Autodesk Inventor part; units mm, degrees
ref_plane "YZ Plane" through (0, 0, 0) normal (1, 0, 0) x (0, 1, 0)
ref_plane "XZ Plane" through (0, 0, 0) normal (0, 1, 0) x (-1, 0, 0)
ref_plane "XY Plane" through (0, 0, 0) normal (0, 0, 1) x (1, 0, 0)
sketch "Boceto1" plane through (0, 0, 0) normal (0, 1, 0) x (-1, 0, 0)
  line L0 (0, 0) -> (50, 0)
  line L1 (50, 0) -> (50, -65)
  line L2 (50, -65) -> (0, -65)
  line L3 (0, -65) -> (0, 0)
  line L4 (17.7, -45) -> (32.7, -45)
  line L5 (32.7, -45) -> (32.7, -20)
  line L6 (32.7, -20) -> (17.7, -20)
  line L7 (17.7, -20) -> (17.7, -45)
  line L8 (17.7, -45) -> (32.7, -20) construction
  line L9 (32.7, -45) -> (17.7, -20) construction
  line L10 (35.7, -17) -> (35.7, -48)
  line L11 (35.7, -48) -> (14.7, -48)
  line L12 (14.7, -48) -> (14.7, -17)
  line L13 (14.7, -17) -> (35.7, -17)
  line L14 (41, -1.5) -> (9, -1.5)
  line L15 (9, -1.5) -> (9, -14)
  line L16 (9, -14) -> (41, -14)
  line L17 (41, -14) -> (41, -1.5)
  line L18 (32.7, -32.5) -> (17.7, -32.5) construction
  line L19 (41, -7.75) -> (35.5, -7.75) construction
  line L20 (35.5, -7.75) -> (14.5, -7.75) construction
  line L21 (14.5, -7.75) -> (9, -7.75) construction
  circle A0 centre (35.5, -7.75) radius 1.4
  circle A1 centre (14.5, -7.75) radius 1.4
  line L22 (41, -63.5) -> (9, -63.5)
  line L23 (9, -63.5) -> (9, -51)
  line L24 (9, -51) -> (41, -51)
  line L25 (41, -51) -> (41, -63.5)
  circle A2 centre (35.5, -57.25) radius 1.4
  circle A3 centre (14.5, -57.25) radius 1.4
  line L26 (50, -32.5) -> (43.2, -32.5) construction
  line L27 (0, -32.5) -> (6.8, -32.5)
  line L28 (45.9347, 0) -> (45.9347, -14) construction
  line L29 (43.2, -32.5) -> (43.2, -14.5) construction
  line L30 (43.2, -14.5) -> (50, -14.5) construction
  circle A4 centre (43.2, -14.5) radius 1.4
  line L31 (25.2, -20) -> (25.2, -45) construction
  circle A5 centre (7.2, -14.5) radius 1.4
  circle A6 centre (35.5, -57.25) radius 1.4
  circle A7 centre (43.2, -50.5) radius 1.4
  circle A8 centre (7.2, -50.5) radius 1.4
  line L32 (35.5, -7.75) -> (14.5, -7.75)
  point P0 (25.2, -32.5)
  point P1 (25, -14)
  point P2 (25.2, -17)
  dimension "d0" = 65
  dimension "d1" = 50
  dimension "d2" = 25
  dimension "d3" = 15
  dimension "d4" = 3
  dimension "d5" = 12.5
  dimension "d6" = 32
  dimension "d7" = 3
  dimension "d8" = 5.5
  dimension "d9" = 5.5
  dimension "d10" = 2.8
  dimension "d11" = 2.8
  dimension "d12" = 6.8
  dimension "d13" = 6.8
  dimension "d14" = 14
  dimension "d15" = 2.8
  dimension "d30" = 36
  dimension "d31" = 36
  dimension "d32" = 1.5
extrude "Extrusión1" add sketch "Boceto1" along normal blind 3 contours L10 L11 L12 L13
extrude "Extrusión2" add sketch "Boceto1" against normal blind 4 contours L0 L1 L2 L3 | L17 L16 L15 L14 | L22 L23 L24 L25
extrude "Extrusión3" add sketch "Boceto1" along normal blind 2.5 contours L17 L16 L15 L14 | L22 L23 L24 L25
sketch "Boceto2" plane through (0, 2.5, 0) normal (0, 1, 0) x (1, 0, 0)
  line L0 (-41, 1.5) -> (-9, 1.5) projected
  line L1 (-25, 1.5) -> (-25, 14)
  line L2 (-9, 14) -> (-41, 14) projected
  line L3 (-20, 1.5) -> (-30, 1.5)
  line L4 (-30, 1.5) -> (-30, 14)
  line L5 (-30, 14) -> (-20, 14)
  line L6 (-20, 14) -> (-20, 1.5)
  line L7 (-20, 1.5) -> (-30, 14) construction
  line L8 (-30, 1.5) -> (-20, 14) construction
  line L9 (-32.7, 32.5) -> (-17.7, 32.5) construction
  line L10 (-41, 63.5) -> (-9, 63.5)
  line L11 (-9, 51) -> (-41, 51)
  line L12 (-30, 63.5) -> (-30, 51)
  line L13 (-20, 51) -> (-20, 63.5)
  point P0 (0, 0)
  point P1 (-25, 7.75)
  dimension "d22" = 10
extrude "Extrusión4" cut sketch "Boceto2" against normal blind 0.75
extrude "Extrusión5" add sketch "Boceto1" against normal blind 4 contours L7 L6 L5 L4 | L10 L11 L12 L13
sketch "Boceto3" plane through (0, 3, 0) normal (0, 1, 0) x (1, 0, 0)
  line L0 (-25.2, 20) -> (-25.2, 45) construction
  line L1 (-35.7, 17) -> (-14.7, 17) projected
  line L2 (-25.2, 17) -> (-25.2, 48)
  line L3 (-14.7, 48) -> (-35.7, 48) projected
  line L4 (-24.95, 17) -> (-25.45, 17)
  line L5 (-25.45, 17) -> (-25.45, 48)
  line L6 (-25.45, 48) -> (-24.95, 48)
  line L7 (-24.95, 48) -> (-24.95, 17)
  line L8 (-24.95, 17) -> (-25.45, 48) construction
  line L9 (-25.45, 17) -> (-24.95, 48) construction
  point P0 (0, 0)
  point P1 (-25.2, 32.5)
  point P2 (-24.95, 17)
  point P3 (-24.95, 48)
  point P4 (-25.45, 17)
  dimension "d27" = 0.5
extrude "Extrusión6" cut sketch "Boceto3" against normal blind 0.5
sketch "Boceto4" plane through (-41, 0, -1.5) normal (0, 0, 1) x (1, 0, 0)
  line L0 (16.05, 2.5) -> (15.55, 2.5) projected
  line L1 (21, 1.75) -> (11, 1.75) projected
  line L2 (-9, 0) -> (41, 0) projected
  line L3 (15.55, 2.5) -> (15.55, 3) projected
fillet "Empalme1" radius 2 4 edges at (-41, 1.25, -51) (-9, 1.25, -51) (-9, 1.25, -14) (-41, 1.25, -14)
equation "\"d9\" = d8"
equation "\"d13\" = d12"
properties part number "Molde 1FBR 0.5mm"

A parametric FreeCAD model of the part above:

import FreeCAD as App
import Part
import Sketcher

V = App.Vector


def edges_at(feature, points):
    """Names of the edges that pass closest to the given points."""
    edges = feature.Shape.Edges
    near = lambda p: min(range(len(edges)), key=lambda i: edges[i].distToShape(Part.Vertex(*p))[0])
    return sorted({f"Edge{near(p) + 1}" for p in points})

doc = App.newDocument("Part")
body = doc.addObject("PartDesign::Body", "Body")
body.AllowCompound = True

# Sketch on XZ plane
sketch1 = doc.addObject("Sketcher::SketchObject", "Sketch")
body.addObject(sketch1)
sketch1.AttachmentSupport = (doc.XZ_Plane, [""])
sketch1.MapMode = "FlatFace"
sketch1.addGeometry(Part.LineSegment(V(-36, -48, 0), V(-36, -17, 0)), False)
sketch1.addGeometry(Part.LineSegment(V(-36, -17, 0), V(-15, -17, 0)), False)
sketch1.addGeometry(Part.LineSegment(V(-15, -17, 0), V(-15, -48, 0)), False)
sketch1.addGeometry(Part.LineSegment(V(-15, -48, 0), V(-36, -48, 0)), False)
sketch1.addGeometry(Part.LineSegment(V(-33, -45, 0), V(-18, -45, 0)), False)
sketch1.addGeometry(Part.LineSegment(V(-18, -45, 0), V(-18, -20, 0)), False)
sketch1.addGeometry(Part.LineSegment(V(-18, -20, 0), V(-33, -20, 0)), False)
sketch1.addGeometry(Part.LineSegment(V(-33, -20, 0), V(-33, -45, 0)), False)
sketch1.addConstraint(Sketcher.Constraint("Coincident", 0, 2, 1, 1))
sketch1.addConstraint(Sketcher.Constraint("Coincident", 1, 2, 2, 1))
sketch1.addConstraint(Sketcher.Constraint("Coincident", 2, 2, 3, 1))
sketch1.addConstraint(Sketcher.Constraint("Coincident", 3, 2, 0, 1))
sketch1.addConstraint(Sketcher.Constraint("Coincident", 4, 2, 5, 1))
sketch1.addConstraint(Sketcher.Constraint("Coincident", 5, 2, 6, 1))
sketch1.addConstraint(Sketcher.Constraint("Coincident", 6, 2, 7, 1))
sketch1.addConstraint(Sketcher.Constraint("Coincident", 7, 2, 4, 1))
sketch1.addConstraint(Sketcher.Constraint("Vertical", 0))
sketch1.addConstraint(Sketcher.Constraint("Horizontal", 1))
sketch1.addConstraint(Sketcher.Constraint("Vertical", 2))
sketch1.addConstraint(Sketcher.Constraint("Horizontal", 3))
sketch1.addConstraint(Sketcher.Constraint("Horizontal", 4))
sketch1.addConstraint(Sketcher.Constraint("Vertical", 5))
sketch1.addConstraint(Sketcher.Constraint("Horizontal", 6))
sketch1.addConstraint(Sketcher.Constraint("Vertical", 7))
sketch1.addConstraint(Sketcher.Constraint("DistanceX", 4, 1, 4, 2, 15.0))
sketch1.addConstraint(Sketcher.Constraint("DistanceY", 5, 1, 5, 2, 25.0))
sketch1.addConstraint(Sketcher.Constraint("DistanceX", 4, 2, 2, 2, 3.0))
sketch1.addConstraint(Sketcher.Constraint("DistanceY", 2, 2, 4, 2, 3.0))
sketch1.addConstraint(Sketcher.Constraint("DistanceY", 5, 2, 1, 2, 3.0))
sketch1.addConstraint(Sketcher.Constraint("DistanceX", 0, 2, 6, 2, 3.0))
sketch1.addConstraint(Sketcher.Constraint("DistanceY", 0, 2, -1, 1, 17.0))
sketch1.addConstraint(Sketcher.Constraint("DistanceX", 0, 2, -1, 1, 35.7))
pad1 = doc.addObject("PartDesign::Pad", "Pad")
body.addObject(pad1)
pad1.Profile = sketch1
pad1.Length = 3
pad1.Reversed = True

# Sketch on XZ plane
sketch2 = doc.addObject("Sketcher::SketchObject", "Sketch001")
body.addObject(sketch2)
sketch2.AttachmentSupport = (doc.XZ_Plane, [""])
sketch2.MapMode = "FlatFace"
sketch2.addGeometry(Part.LineSegment(V(-50, 0, 0), V(0, 0, 0)), False)
sketch2.addGeometry(Part.LineSegment(V(0, 0, 0), V(0, -65, 0)), False)
sketch2.addGeometry(Part.LineSegment(V(0, -65, 0), V(-50, -65, 0)), False)
sketch2.addGeometry(Part.LineSegment(V(-50, -65, 0), V(-50, 0, 0)), False)
sketch2.addGeometry(Part.Circle(V(-7.2, -50.5, 0), V(0, 0, 1), 1.4), False)
sketch2.addGeometry(Part.Circle(V(-43.2, -50.5, 0), V(0, 0, 1), 1.4), False)
sketch2.addGeometry(Part.Circle(V(-7.2, -14.5, 0), V(0, 0, 1), 1.4), False)
sketch2.addGeometry(Part.LineSegment(V(-14.7, -17, 0), V(-35.7, -17, 0)), False)
sketch2.addGeometry(Part.LineSegment(V(-35.7, -17, 0), V(-35.7, -48, 0)), False)
sketch2.addGeometry(Part.LineSegment(V(-35.7, -48, 0), V(-14.7, -48, 0)), False)
sketch2.addGeometry(Part.LineSegment(V(-14.7, -48, 0), V(-14.7, -17, 0)), False)
sketch2.addGeometry(Part.Circle(V(-43.2, -14.5, 0), V(0, 0, 1), 1.4), False)
sketch2.addGeometry(Part.Circle(V(-14.5, -57.2, 0), V(0, 0, 1), 1.4), False)
sketch2.addGeometry(Part.Circle(V(-35.5, -57.2, 0), V(0, 0, 1), 1.4), False)
sketch2.addGeometry(Part.Circle(V(-14.5, -7.8, 0), V(0, 0, 1), 1.4), False)
sketch2.addGeometry(Part.Circle(V(-35.5, -7.8, 0), V(0, 0, 1), 1.4), False)
sketch2.addConstraint(Sketcher.Constraint("Coincident", 0, 2, 1, 1))
sketch2.addConstraint(Sketcher.Constraint("Coincident", 1, 2, 2, 1))
sketch2.addConstraint(Sketcher.Constraint("Coincident", 2, 2, 3, 1))
sketch2.addConstraint(Sketcher.Constraint("Coincident", 3, 2, 0, 1))
sketch2.addConstraint(Sketcher.Constraint("Coincident", 7, 2, 8, 1))
sketch2.addConstraint(Sketcher.Constraint("Coincident", 8, 2, 9, 1))
sketch2.addConstraint(Sketcher.Constraint("Coincident", 9, 2, 10, 1))
sketch2.addConstraint(Sketcher.Constraint("Coincident", 10, 2, 7, 1))
sketch2.addConstraint(Sketcher.Constraint("Horizontal", 0))
sketch2.addConstraint(Sketcher.Constraint("Vertical", 1))
sketch2.addConstraint(Sketcher.Constraint("Horizontal", 2))
sketch2.addConstraint(Sketcher.Constraint("Vertical", 3))
sketch2.addConstraint(Sketcher.Constraint("Horizontal", 7))
sketch2.addConstraint(Sketcher.Constraint("Vertical", 8))
sketch2.addConstraint(Sketcher.Constraint("Horizontal", 9))
sketch2.addConstraint(Sketcher.Constraint("Vertical", 10))
sketch2.addConstraint(Sketcher.Constraint("Coincident", 0, 2, -1, 1))
sketch2.addConstraint(Sketcher.Constraint("Equal", 4, 5))
sketch2.addConstraint(Sketcher.Constraint("Equal", 5, 6))
sketch2.addConstraint(Sketcher.Constraint("Equal", 6, 11))
sketch2.addConstraint(Sketcher.Constraint("Equal", 11, 12))
sketch2.addConstraint(Sketcher.Constraint("Equal", 12, 13))
sketch2.addConstraint(Sketcher.Constraint("Equal", 13, 14))
sketch2.addConstraint(Sketcher.Constraint("Equal", 14, 15))
sketch2.addConstraint(Sketcher.Constraint("Horizontal", 4, 3, 5, 3))
sketch2.addConstraint(Sketcher.Constraint("Horizontal", 6, 3, 11, 3))
sketch2.addConstraint(Sketcher.Constraint("Horizontal", 12, 3, 13, 3))
sketch2.addConstraint(Sketcher.Constraint("Horizontal", 14, 3, 15, 3))
sketch2.addConstraint(Sketcher.Constraint("Vertical", 4, 3, 6, 3))
sketch2.addConstraint(Sketcher.Constraint("Vertical", 5, 3, 11, 3))
sketch2.addConstraint(Sketcher.Constraint("Vertical", 12, 3, 14, 3))
sketch2.addConstraint(Sketcher.Constraint("Vertical", 13, 3, 15, 3))
sketch2.addConstraint(Sketcher.Constraint("Diameter", 4, 2.8))
sketch2.addConstraint(Sketcher.Constraint("DistanceX", 0, 1, 0, 2, 50.0))
sketch2.addConstraint(Sketcher.Constraint("DistanceY", 1, 2, 1, 1, 65.0))
sketch2.addConstraint(Sketcher.Constraint("DistanceX", 5, 3, 4, 3, 36.0))
sketch2.addConstraint(Sketcher.Constraint("DistanceY", 4, 3, 6, 3, 36.0))
sketch2.addConstraint(Sketcher.Constraint("DistanceX", 2, 2, 5, 3, 6.8))
sketch2.addConstraint(Sketcher.Constraint("DistanceX", 7, 2, 7, 1, 21.0))
sketch2.addConstraint(Sketcher.Constraint("DistanceY", 8, 2, 8, 1, 31.0))
sketch2.addConstraint(Sketcher.Constraint("DistanceY", 7, 2, -1, 1, 17.0))
sketch2.addConstraint(Sketcher.Constraint("DistanceX", 13, 3, 12, 3, 21.0))
sketch2.addConstraint(Sketcher.Constraint("DistanceY", 4, 3, -1, 1, 50.5))
sketch2.addConstraint(Sketcher.Constraint("DistanceX", 12, 3, -1, 1, 14.5))
sketch2.addConstraint(Sketcher.Constraint("DistanceX", 7, 2, -1, 1, 35.7))
sketch2.addConstraint(Sketcher.Constraint("DistanceY", 12, 3, 14, 3, 49.5))
sketch2.addConstraint(Sketcher.Constraint("DistanceY", 12, 3, -1, 1, 57.25))
pad2 = doc.addObject("PartDesign::Pad", "Pad001")
body.addObject(pad2)
pad2.Profile = sketch2
pad2.Length = 4

# Sketch on XZ plane
sketch3 = doc.addObject("Sketcher::SketchObject", "Sketch002")
body.addObject(sketch3)
sketch3.AttachmentSupport = (doc.XZ_Plane, [""])
sketch3.MapMode = "FlatFace"
sketch3.addGeometry(Part.LineSegment(V(-41, -14, 0), V(-41, -1.5, 0)), False)
sketch3.addGeometry(Part.LineSegment(V(-41, -1.5, 0), V(-9, -1.5, 0)), False)
sketch3.addGeometry(Part.LineSegment(V(-9, -1.5, 0), V(-9, -14, 0)), False)
sketch3.addGeometry(Part.LineSegment(V(-9, -14, 0), V(-41, -14, 0)), False)
sketch3.addGeometry(Part.Circle(V(-14.5, -7.8, 0), V(0, 0, 1), 1.4), False)
sketch3.addGeometry(Part.Circle(V(-35.5, -7.8, 0), V(0, 0, 1), 1.4), False)
sketch3.addGeometry(Part.LineSegment(V(-9, -63.5, 0), V(-41, -63.5, 0)), False)
sketch3.addGeometry(Part.LineSegment(V(-41, -63.5, 0), V(-41, -51, 0)), False)
sketch3.addGeometry(Part.LineSegment(V(-41, -51, 0), V(-9, -51, 0)), False)
sketch3.addGeometry(Part.LineSegment(V(-9, -51, 0), V(-9, -63.5, 0)), False)
sketch3.addGeometry(Part.Circle(V(-14.5, -57.2, 0), V(0, 0, 1), 1.4), False)
sketch3.addGeometry(Part.Circle(V(-35.5, -57.2, 0), V(0, 0, 1), 1.4), False)
sketch3.addConstraint(Sketcher.Constraint("Coincident", 0, 2, 1, 1))
sketch3.addConstraint(Sketcher.Constraint("Coincident", 1, 2, 2, 1))
sketch3.addConstraint(Sketcher.Constraint("Coincident", 2, 2, 3, 1))
sketch3.addConstraint(Sketcher.Constraint("Coincident", 3, 2, 0, 1))
sketch3.addConstraint(Sketcher.Constraint("Coincident", 6, 2, 7, 1))
sketch3.addConstraint(Sketcher.Constraint("Coincident", 7, 2, 8, 1))
sketch3.addConstraint(Sketcher.Constraint("Coincident", 8, 2, 9, 1))
sketch3.addConstraint(Sketcher.Constraint("Coincident", 9, 2, 6, 1))
sketch3.addConstraint(Sketcher.Constraint("Vertical", 0))
sketch3.addConstraint(Sketcher.Constraint("Horizontal", 1))
sketch3.addConstraint(Sketcher.Constraint("Vertical", 2))
sketch3.addConstraint(Sketcher.Constraint("Horizontal", 3))
sketch3.addConstraint(Sketcher.Constraint("Horizontal", 6))
sketch3.addConstraint(Sketcher.Constraint("Vertical", 7))
sketch3.addConstraint(Sketcher.Constraint("Horizontal", 8))
sketch3.addConstraint(Sketcher.Constraint("Vertical", 9))
sketch3.addConstraint(Sketcher.Constraint("Equal", 4, 5))
sketch3.addConstraint(Sketcher.Constraint("Equal", 5, 10))
sketch3.addConstraint(Sketcher.Constraint("Equal", 10, 11))
sketch3.addConstraint(Sketcher.Constraint("Horizontal", 4, 3, 5, 3))
sketch3.addConstraint(Sketcher.Constraint("Horizontal", 10, 3, 11, 3))
sketch3.addConstraint(Sketcher.Constraint("Vertical", 4, 3, 10, 3))
sketch3.addConstraint(Sketcher.Constraint("Vertical", 5, 3, 11, 3))
sketch3.addConstraint(Sketcher.Constraint("Vertical", 3, 2, 6, 2))
sketch3.addConstraint(Sketcher.Constraint("Vertical", 2, 2, 8, 2))
sketch3.addConstraint(Sketcher.Constraint("Equal", 2, 7))
sketch3.addConstraint(Sketcher.Constraint("Diameter", 4, 2.8))
sketch3.addConstraint(Sketcher.Constraint("DistanceX", 1, 1, 1, 2, 32.0))
sketch3.addConstraint(Sketcher.Constraint("DistanceY", 0, 1, 0, 2, 12.5))
sketch3.addConstraint(Sketcher.Constraint("DistanceY", 2, 2, -1, 1, 14.0))
sketch3.addConstraint(Sketcher.Constraint("DistanceX", 0, 2, 5, 3, 5.5))
sketch3.addConstraint(Sketcher.Constraint("DistanceX", 4, 3, 1, 2, 5.5))
sketch3.addConstraint(Sketcher.Constraint("DistanceX", 0, 2, -1, 1, 41.0))
sketch3.addConstraint(Sketcher.Constraint("DistanceY", 7, 2, -1, 1, 51.0))
sketch3.addConstraint(Sketcher.Constraint("DistanceY", 10, 3, 4, 3, 49.5))
sketch3.addConstraint(Sketcher.Constraint("DistanceY", 4, 3, -1, 1, 7.75))
pad3 = doc.addObject("PartDesign::Pad", "Pad002")
body.addObject(pad3)
pad3.Profile = sketch3
pad3.Length = 2.5
pad3.Reversed = True

# Sketch on XZ plane
sketch4 = doc.addObject("Sketcher::SketchObject", "Sketch003")
body.addObject(sketch4)
sketch4.AttachmentSupport = (doc.XZ_Plane, [""])
sketch4.MapMode = "FlatFace"
sketch4.AttachmentOffset = App.Placement(V(0, 0, -2.5), App.Rotation())
sketch4.addGeometry(Part.LineSegment(V(-30, -14, 0), V(-30, -2, 0)), False)
sketch4.addGeometry(Part.LineSegment(V(-30, -2, 0), V(-20, -2, 0)), False)
sketch4.addGeometry(Part.LineSegment(V(-20, -2, 0), V(-20, -14, 0)), False)
sketch4.addGeometry(Part.LineSegment(V(-20, -14, 0), V(-30, -14, 0)), False)
sketch4.addGeometry(Part.LineSegment(V(-20, -64, 0), V(-30, -64, 0)), False)
sketch4.addGeometry(Part.LineSegment(V(-30, -64, 0), V(-30, -51, 0)), False)
sketch4.addGeometry(Part.LineSegment(V(-30, -51, 0), V(-20, -51, 0)), False)
sketch4.addGeometry(Part.LineSegment(V(-20, -51, 0), V(-20, -64, 0)), False)
sketch4.addConstraint(Sketcher.Constraint("Coincident", 0, 2, 1, 1))
sketch4.addConstraint(Sketcher.Constraint("Coincident", 1, 2, 2, 1))
sketch4.addConstraint(Sketcher.Constraint("Coincident", 2, 2, 3, 1))
sketch4.addConstraint(Sketcher.Constraint("Coincident", 3, 2, 0, 1))
sketch4.addConstraint(Sketcher.Constraint("Coincident", 4, 2, 5, 1))
sketch4.addConstraint(Sketcher.Constraint("Coincident", 5, 2, 6, 1))
sketch4.addConstraint(Sketcher.Constraint("Coincident", 6, 2, 7, 1))
sketch4.addConstraint(Sketcher.Constraint("Coincident", 7, 2, 4, 1))
sketch4.addConstraint(Sketcher.Constraint("Vertical", 0))
sketch4.addConstraint(Sketcher.Constraint("Horizontal", 1))
sketch4.addConstraint(Sketcher.Constraint("Vertical", 2))
sketch4.addConstraint(Sketcher.Constraint("Horizontal", 3))
sketch4.addConstraint(Sketcher.Constraint("Horizontal", 4))
sketch4.addConstraint(Sketcher.Constraint("Vertical", 5))
sketch4.addConstraint(Sketcher.Constraint("Horizontal", 6))
sketch4.addConstraint(Sketcher.Constraint("Vertical", 7))
sketch4.addConstraint(Sketcher.Constraint("Vertical", 3, 2, 4, 2))
sketch4.addConstraint(Sketcher.Constraint("Vertical", 2, 2, 6, 2))
sketch4.addConstraint(Sketcher.Constraint("Equal", 2, 5))
sketch4.addConstraint(Sketcher.Constraint("DistanceX", 1, 1, 1, 2, 10.0))
sketch4.addConstraint(Sketcher.Constraint("DistanceY", 0, 1, 0, 2, 12.5))
sketch4.addConstraint(Sketcher.Constraint("DistanceX", 0, 2, -1, 1, 30.0))
sketch4.addConstraint(Sketcher.Constraint("DistanceY", 2, 2, -1, 1, 14.0))
sketch4.addConstraint(Sketcher.Constraint("DistanceY", 5, 2, -1, 1, 51.0))
pocket1 = doc.addObject("PartDesign::Pocket", "Pocket")
body.addObject(pocket1)
pocket1.Profile = sketch4
pocket1.Length = 0.75
pocket1.Reversed = True

# Sketch on XZ plane
sketch5 = doc.addObject("Sketcher::SketchObject", "Sketch004")
body.addObject(sketch5)
sketch5.AttachmentSupport = (doc.XZ_Plane, [""])
sketch5.MapMode = "FlatFace"
sketch5.addGeometry(Part.LineSegment(V(-36, -48, 0), V(-36, -17, 0)), False)
sketch5.addGeometry(Part.LineSegment(V(-36, -17, 0), V(-15, -17, 0)), False)
sketch5.addGeometry(Part.LineSegment(V(-15, -17, 0), V(-15, -48, 0)), False)
sketch5.addGeometry(Part.LineSegment(V(-15, -48, 0), V(-36, -48, 0)), False)
sketch5.addConstraint(Sketcher.Constraint("Coincident", 0, 2, 1, 1))
sketch5.addConstraint(Sketcher.Constraint("Coincident", 1, 2, 2, 1))
sketch5.addConstraint(Sketcher.Constraint("Coincident", 2, 2, 3, 1))
sketch5.addConstraint(Sketcher.Constraint("Coincident", 3, 2, 0, 1))
sketch5.addConstraint(Sketcher.Constraint("Vertical", 0))
sketch5.addConstraint(Sketcher.Constraint("Horizontal", 1))
sketch5.addConstraint(Sketcher.Constraint("Vertical", 2))
sketch5.addConstraint(Sketcher.Constraint("Horizontal", 3))
sketch5.addConstraint(Sketcher.Constraint("DistanceX", 1, 1, 1, 2, 21.0))
sketch5.addConstraint(Sketcher.Constraint("DistanceY", 0, 1, 0, 2, 31.0))
sketch5.addConstraint(Sketcher.Constraint("DistanceY", 0, 2, -1, 1, 17.0))
sketch5.addConstraint(Sketcher.Constraint("DistanceX", 0, 2, -1, 1, 35.7))
pad4 = doc.addObject("PartDesign::Pad", "Pad003")
body.addObject(pad4)
pad4.Profile = sketch5
pad4.Length = 4

# Sketch on XZ plane
sketch6 = doc.addObject("Sketcher::SketchObject", "Sketch005")
body.addObject(sketch6)
sketch6.AttachmentSupport = (doc.XZ_Plane, [""])
sketch6.MapMode = "FlatFace"
sketch6.AttachmentOffset = App.Placement(V(0, 0, -3), App.Rotation())
sketch6.addGeometry(Part.LineSegment(V(-25.4, -48, 0), V(-25.4, -17, 0)), False)
sketch6.addGeometry(Part.LineSegment(V(-25.4, -17, 0), V(-24.9, -17, 0)), False)
sketch6.addGeometry(Part.LineSegment(V(-24.9, -17, 0), V(-24.9, -48, 0)), False)
sketch6.addGeometry(Part.LineSegment(V(-24.9, -48, 0), V(-25.4, -48, 0)), False)
sketch6.addConstraint(Sketcher.Constraint("Coincident", 0, 2, 1, 1))
sketch6.addConstraint(Sketcher.Constraint("Coincident", 1, 2, 2, 1))
sketch6.addConstraint(Sketcher.Constraint("Coincident", 2, 2, 3, 1))
sketch6.addConstraint(Sketcher.Constraint("Coincident", 3, 2, 0, 1))
sketch6.addConstraint(Sketcher.Constraint("Vertical", 0))
sketch6.addConstraint(Sketcher.Constraint("Horizontal", 1))
sketch6.addConstraint(Sketcher.Constraint("Vertical", 2))
sketch6.addConstraint(Sketcher.Constraint("Horizontal", 3))
sketch6.addConstraint(Sketcher.Constraint("DistanceX", 1, 1, 1, 2, 0.5))
sketch6.addConstraint(Sketcher.Constraint("DistanceY", 0, 1, 0, 2, 31.0))
sketch6.addConstraint(Sketcher.Constraint("DistanceY", 0, 2, -1, 1, 17.0))
sketch6.addConstraint(Sketcher.Constraint("DistanceX", 0, 2, -1, 1, 25.45))
pocket2 = doc.addObject("PartDesign::Pocket", "Pocket001")
body.addObject(pocket2)
pocket2.Profile = sketch6
pocket2.Length = 0.5
pocket2.Reversed = True
doc.recompute()

fillet = doc.addObject("PartDesign::Fillet", "Fillet")
body.addObject(fillet)
fillet.Base = (pocket2, edges_at(pocket2, [
    (-41, 1.25, -51),
    (-9, 1.25, -51),
    (-9, 1.25, -14),
    (-41, 1.25, -14),
]))
fillet.Radius = 2

doc.recompute()
